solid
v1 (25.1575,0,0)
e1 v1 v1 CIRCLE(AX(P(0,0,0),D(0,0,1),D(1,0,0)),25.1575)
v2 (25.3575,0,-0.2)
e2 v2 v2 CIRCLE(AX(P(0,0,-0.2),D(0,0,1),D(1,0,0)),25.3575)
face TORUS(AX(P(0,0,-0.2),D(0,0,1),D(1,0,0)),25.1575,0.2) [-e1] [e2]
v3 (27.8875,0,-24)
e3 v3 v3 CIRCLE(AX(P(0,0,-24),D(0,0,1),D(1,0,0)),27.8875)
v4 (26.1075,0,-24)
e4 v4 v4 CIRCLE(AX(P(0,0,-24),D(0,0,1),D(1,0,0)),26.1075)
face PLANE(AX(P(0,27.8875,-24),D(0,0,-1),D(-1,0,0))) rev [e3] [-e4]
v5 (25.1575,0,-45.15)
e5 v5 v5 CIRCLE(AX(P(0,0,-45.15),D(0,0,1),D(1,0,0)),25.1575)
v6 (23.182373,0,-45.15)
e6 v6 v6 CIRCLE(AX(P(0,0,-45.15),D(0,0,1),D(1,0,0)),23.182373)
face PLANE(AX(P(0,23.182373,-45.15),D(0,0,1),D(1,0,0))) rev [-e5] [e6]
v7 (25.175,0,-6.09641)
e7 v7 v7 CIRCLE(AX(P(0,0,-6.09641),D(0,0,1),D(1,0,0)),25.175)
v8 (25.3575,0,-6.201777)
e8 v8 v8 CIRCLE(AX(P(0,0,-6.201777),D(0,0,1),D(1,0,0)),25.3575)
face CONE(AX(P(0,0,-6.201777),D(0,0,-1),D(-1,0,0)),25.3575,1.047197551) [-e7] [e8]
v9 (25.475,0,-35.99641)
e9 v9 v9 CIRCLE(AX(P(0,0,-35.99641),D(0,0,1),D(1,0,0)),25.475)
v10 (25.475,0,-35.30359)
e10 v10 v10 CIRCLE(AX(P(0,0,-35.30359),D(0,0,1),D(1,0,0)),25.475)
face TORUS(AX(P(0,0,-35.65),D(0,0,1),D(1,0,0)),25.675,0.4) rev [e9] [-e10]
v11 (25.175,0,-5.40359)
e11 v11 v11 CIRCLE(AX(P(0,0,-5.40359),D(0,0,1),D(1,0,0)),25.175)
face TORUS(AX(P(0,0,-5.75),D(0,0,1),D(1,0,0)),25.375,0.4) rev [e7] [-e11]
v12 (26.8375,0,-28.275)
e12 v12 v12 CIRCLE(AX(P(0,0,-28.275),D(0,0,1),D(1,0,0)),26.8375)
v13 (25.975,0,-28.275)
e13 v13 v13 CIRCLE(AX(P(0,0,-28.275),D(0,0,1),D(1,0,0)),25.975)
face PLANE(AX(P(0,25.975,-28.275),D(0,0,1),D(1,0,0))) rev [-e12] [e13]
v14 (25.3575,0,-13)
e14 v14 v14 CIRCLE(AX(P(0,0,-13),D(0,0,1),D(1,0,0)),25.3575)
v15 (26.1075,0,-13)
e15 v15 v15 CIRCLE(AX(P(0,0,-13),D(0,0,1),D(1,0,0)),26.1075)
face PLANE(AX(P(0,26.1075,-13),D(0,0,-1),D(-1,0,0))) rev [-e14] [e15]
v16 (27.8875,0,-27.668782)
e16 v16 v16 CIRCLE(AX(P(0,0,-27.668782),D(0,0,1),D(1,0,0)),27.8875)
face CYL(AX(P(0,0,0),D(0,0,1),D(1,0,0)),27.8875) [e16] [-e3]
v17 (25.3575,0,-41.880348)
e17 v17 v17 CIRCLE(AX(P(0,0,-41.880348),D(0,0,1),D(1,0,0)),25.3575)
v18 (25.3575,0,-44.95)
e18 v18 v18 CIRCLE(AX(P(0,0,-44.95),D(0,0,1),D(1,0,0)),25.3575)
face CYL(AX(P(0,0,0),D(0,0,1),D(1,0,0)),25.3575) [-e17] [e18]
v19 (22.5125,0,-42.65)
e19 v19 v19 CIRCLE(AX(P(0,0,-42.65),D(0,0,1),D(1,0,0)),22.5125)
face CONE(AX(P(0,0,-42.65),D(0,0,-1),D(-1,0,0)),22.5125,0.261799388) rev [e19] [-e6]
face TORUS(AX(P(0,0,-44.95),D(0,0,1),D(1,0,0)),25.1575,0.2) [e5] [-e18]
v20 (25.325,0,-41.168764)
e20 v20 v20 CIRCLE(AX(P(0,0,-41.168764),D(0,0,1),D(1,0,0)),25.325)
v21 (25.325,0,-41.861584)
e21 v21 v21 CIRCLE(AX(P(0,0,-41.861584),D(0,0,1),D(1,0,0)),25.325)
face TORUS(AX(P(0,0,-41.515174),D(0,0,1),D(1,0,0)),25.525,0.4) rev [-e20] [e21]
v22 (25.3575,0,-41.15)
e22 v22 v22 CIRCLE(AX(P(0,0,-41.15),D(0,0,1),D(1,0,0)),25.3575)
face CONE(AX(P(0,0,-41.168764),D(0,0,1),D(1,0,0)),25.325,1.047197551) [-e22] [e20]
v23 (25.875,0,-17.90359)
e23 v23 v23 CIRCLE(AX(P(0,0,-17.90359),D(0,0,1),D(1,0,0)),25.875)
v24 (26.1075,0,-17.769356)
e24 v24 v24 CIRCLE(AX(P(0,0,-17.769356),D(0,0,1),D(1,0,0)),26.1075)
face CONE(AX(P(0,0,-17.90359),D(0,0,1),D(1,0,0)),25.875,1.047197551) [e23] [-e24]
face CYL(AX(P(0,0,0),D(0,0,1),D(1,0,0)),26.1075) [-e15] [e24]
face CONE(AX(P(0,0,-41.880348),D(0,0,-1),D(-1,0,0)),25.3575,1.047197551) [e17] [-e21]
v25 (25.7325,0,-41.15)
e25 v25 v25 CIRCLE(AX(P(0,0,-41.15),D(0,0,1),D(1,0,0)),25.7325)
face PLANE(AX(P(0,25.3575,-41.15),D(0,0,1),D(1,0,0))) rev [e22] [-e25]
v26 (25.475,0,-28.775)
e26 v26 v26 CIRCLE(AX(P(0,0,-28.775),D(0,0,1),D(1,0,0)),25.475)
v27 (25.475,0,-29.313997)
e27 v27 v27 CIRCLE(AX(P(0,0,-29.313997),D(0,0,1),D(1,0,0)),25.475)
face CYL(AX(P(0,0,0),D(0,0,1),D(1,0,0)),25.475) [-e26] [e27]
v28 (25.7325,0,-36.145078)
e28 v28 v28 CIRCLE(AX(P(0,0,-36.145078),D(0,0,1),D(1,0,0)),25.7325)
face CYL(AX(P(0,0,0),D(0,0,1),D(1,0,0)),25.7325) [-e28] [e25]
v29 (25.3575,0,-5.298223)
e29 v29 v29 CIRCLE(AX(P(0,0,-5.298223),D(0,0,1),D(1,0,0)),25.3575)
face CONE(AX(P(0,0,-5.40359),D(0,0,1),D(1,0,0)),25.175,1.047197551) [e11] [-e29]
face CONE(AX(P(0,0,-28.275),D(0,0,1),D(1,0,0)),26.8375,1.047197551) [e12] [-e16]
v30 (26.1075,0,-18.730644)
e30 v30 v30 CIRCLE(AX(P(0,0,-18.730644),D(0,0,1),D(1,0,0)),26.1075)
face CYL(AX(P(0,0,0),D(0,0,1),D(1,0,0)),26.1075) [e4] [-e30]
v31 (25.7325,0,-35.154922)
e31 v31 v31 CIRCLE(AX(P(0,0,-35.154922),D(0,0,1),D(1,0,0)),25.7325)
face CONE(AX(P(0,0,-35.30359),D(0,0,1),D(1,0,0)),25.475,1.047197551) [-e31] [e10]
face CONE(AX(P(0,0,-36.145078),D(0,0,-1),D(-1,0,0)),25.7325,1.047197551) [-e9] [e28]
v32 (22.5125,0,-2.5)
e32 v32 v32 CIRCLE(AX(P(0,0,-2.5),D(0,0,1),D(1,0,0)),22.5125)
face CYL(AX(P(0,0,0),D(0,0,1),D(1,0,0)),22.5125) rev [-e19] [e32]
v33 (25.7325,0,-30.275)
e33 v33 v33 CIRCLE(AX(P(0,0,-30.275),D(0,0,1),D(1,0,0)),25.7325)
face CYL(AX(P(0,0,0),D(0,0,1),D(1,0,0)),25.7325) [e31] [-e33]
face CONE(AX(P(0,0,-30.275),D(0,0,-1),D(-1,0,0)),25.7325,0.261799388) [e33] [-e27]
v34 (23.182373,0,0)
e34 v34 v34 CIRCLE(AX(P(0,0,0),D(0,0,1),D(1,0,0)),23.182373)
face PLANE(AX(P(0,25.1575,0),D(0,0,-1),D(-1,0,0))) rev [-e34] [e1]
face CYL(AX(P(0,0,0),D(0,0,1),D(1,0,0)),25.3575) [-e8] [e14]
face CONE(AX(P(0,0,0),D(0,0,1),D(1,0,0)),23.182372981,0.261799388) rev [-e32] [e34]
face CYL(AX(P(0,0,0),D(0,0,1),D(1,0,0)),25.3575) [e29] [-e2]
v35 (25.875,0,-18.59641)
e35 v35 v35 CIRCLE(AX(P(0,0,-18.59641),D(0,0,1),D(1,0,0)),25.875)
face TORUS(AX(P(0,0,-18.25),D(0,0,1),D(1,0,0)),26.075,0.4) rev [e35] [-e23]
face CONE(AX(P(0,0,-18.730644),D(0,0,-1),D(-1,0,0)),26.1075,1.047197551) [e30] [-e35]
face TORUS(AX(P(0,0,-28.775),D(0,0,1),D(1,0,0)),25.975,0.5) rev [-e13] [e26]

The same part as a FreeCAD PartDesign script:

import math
import FreeCAD as App
import Part
import Sketcher

V = App.Vector
Q = App.Units.Quantity

doc = App.newDocument("Part")
params = doc.addObject("Spreadsheet::Sheet", "Params")
for row, (alias, value) in enumerate([
    ("sketch1_radius", "0.2 mm"),
    ("sketch1_radius2", "0.4 mm"),
    ("sketch1_radius3", "0.5 mm"),
    ("sketch1_width", "1.78 mm"),
    ("sketch1_width2", "0.75 mm"),
    ("revolution_angle", "360 deg"),
], start=1):
    params.set(f"A{row}", alias)
    params.set(f"B{row}", "=" + value)
    params.setAlias(f"B{row}", alias)

body = doc.addObject("PartDesign::Body", "Body")

# Sketch on YZ plane
sketch1 = body.newObject("Sketcher::SketchObject", "Sketch")
sketch1.AttachmentSupport = (doc.getObject("YZ_Plane"), [""])
sketch1.MapMode = "FlatFace"
sketch1.addGeometry(Part.LineSegment(V(23.182, 0, 0), V(22.512, -2.5, 0)), False)
sketch1.addGeometry(Part.LineSegment(V(22.512, -2.5, 0), V(22.512, -42.65, 0)), False)
sketch1.addGeometry(Part.LineSegment(V(22.512, -42.65, 0), V(23.182, -45.15, 0)), False)
sketch1.addGeometry(Part.LineSegment(V(23.182, -45.15, 0), V(25.157, -45.15, 0)), False)
sketch1.addGeometry(Part.ArcOfCircle(Part.Circle(V(25.157, -44.95, 0), V(0, 0, 1), 0.2), math.radians(-90), math.radians(0)), False)
sketch1.addGeometry(Part.LineSegment(V(25.358, -44.95, 0), V(25.358, -41.88, 0)), False)
sketch1.addGeometry(Part.LineSegment(V(25.358, -41.88, 0), V(25.325, -41.862, 0)), False)
sketch1.addGeometry(Part.ArcOfCircle(Part.Circle(V(25.525, -41.515, 0), V(0, 0, 1), 0.4), math.radians(120), math.radians(240)), False)
sketch1.addGeometry(Part.LineSegment(V(25.325, -41.169, 0), V(25.358, -41.15, 0)), False)
sketch1.addGeometry(Part.LineSegment(V(25.358, -41.15, 0), V(25.733, -41.15, 0)), False)
sketch1.addGeometry(Part.LineSegment(V(25.733, -41.15, 0), V(25.733, -36.145, 0)), False)
sketch1.addGeometry(Part.LineSegment(V(25.733, -36.145, 0), V(25.475, -35.996, 0)), False)
sketch1.addGeometry(Part.ArcOfCircle(Part.Circle(V(25.675, -35.65, 0), V(0, 0, 1), 0.4), math.radians(120), math.radians(240)), False)
sketch1.addGeometry(Part.LineSegment(V(25.475, -35.304, 0), V(25.733, -35.155, 0)), False)
sketch1.addGeometry(Part.LineSegment(V(25.733, -35.155, 0), V(25.733, -30.275, 0)), False)
sketch1.addGeometry(Part.LineSegment(V(25.733, -30.275, 0), V(25.475, -29.314, 0)), False)
sketch1.addGeometry(Part.LineSegment(V(25.475, -29.314, 0), V(25.475, -28.775, 0)), False)
sketch1.addGeometry(Part.ArcOfCircle(Part.Circle(V(25.975, -28.775, 0), V(0, 0, 1), 0.5), math.radians(90), math.radians(180)), False)
sketch1.addGeometry(Part.LineSegment(V(25.975, -28.275, 0), V(26.837, -28.275, 0)), False)
sketch1.addGeometry(Part.LineSegment(V(26.837, -28.275, 0), V(27.887, -27.669, 0)), False)
sketch1.addGeometry(Part.LineSegment(V(27.887, -27.669, 0), V(27.887, -24, 0)), False)
sketch1.addGeometry(Part.LineSegment(V(27.887, -24, 0), V(26.108, -24, 0)), False)
sketch1.addGeometry(Part.LineSegment(V(26.108, -24, 0), V(26.108, -18.731, 0)), False)
sketch1.addGeometry(Part.LineSegment(V(26.108, -18.731, 0), V(25.875, -18.596, 0)), False)
sketch1.addGeometry(Part.ArcOfCircle(Part.Circle(V(26.075, -18.25, 0), V(0, 0, 1), 0.4), math.radians(120), math.radians(240)), False)
sketch1.addGeometry(Part.LineSegment(V(25.875, -17.904, 0), V(26.108, -17.769, 0)), False)
sketch1.addGeometry(Part.LineSegment(V(26.108, -17.769, 0), V(26.108, -13, 0)), False)
sketch1.addGeometry(Part.LineSegment(V(26.108, -13, 0), V(25.358, -13, 0)), False)
sketch1.addGeometry(Part.LineSegment(V(25.358, -13, 0), V(25.358, -6.202, 0)), False)
sketch1.addGeometry(Part.LineSegment(V(25.358, -6.202, 0), V(25.175, -6.096, 0)), False)
sketch1.addGeometry(Part.ArcOfCircle(Part.Circle(V(25.375, -5.75, 0), V(0, 0, 1), 0.4), math.radians(120), math.radians(240)), False)
sketch1.addGeometry(Part.LineSegment(V(25.175, -5.404, 0), V(25.358, -5.298, 0)), False)
sketch1.addGeometry(Part.LineSegment(V(25.358, -5.298, 0), V(25.358, -0.2, 0)), False)
sketch1.addGeometry(Part.ArcOfCircle(Part.Circle(V(25.157, -0.2, 0), V(0, 0, 1), 0.2), math.radians(0), math.radians(90)), False)
sketch1.addGeometry(Part.LineSegment(V(25.157, 0, 0), V(23.182, 0, 0)), False)
sketch1.addConstraint(Sketcher.Constraint("Coincident", 0, 2, 1, 1))
sketch1.addConstraint(Sketcher.Constraint("Coincident", 1, 2, 2, 1))
sketch1.addConstraint(Sketcher.Constraint("Coincident", 2, 2, 3, 1))
sketch1.addConstraint(Sketcher.Constraint("Tangent", 3, 2, 4, 1))
sketch1.addConstraint(Sketcher.Constraint("Tangent", 4, 2, 5, 1))
sketch1.addConstraint(Sketcher.Constraint("Coincident", 5, 2, 6, 1))
sketch1.addConstraint(Sketcher.Constraint("Tangent", 6, 2, 7, 2))
sketch1.addConstraint(Sketcher.Constraint("Tangent", 7, 1, 8, 1))
sketch1.addConstraint(Sketcher.Constraint("Coincident", 8, 2, 9, 1))
sketch1.addConstraint(Sketcher.Constraint("Coincident", 9, 2, 10, 1))
sketch1.addConstraint(Sketcher.Constraint("Coincident", 10, 2, 11, 1))
sketch1.addConstraint(Sketcher.Constraint("Tangent", 11, 2, 12, 2))
sketch1.addConstraint(Sketcher.Constraint("Tangent", 12, 1, 13, 1))
sketch1.addConstraint(Sketcher.Constraint("Coincident", 13, 2, 14, 1))
sketch1.addConstraint(Sketcher.Constraint("Coincident", 14, 2, 15, 1))
sketch1.addConstraint(Sketcher.Constraint("Coincident", 15, 2, 16, 1))
sketch1.addConstraint(Sketcher.Constraint("Tangent", 16, 2, 17, 2))
sketch1.addConstraint(Sketcher.Constraint("Tangent", 17, 1, 18, 1))
sketch1.addConstraint(Sketcher.Constraint("Coincident", 18, 2, 19, 1))
sketch1.addConstraint(Sketcher.Constraint("Coincident", 19, 2, 20, 1))
sketch1.addConstraint(Sketcher.Constraint("Coincident", 20, 2, 21, 1))
sketch1.addConstraint(Sketcher.Constraint("Coincident", 21, 2, 22, 1))
sketch1.addConstraint(Sketcher.Constraint("Coincident", 22, 2, 23, 1))
sketch1.addConstraint(Sketcher.Constraint("Tangent", 23, 2, 24, 2))
sketch1.addConstraint(Sketcher.Constraint("Tangent", 24, 1, 25, 1))
sketch1.addConstraint(Sketcher.Constraint("Coincident", 25, 2, 26, 1))
sketch1.addConstraint(Sketcher.Constraint("Coincident", 26, 2, 27, 1))
sketch1.addConstraint(Sketcher.Constraint("Coincident", 27, 2, 28, 1))
sketch1.addConstraint(Sketcher.Constraint("Coincident", 28, 2, 29, 1))
sketch1.addConstraint(Sketcher.Constraint("Tangent", 29, 2, 30, 2))
sketch1.addConstraint(Sketcher.Constraint("Tangent", 30, 1, 31, 1))
sketch1.addConstraint(Sketcher.Constraint("Coincident", 31, 2, 32, 1))
sketch1.addConstraint(Sketcher.Constraint("Tangent", 32, 2, 33, 1))
sketch1.addConstraint(Sketcher.Constraint("Tangent", 33, 2, 34, 1))
sketch1.addConstraint(Sketcher.Constraint("Coincident", 34, 2, 0, 1))
sketch1.addConstraint(Sketcher.Constraint("Vertical", 1))
sketch1.addConstraint(Sketcher.Constraint("Horizontal", 3))
sketch1.addConstraint(Sketcher.Constraint("Vertical", 5))
sketch1.addConstraint(Sketcher.Constraint("Horizontal", 9))
sketch1.addConstraint(Sketcher.Constraint("Vertical", 10))
sketch1.addConstraint(Sketcher.Constraint("Vertical", 14))
sketch1.addConstraint(Sketcher.Constraint("Vertical", 16))
sketch1.addConstraint(Sketcher.Constraint("Horizontal", 18))
sketch1.addConstraint(Sketcher.Constraint("Vertical", 20))
sketch1.addConstraint(Sketcher.Constraint("Horizontal", 21))
sketch1.addConstraint(Sketcher.Constraint("Vertical", 22))
sketch1.addConstraint(Sketcher.Constraint("Vertical", 26))
sketch1.addConstraint(Sketcher.Constraint("Horizontal", 27))
sketch1.addConstraint(Sketcher.Constraint("Vertical", 28))
sketch1.addConstraint(Sketcher.Constraint("Vertical", 32))
sketch1.addConstraint(Sketcher.Constraint("Horizontal", 34))
sketch1.addConstraint(Sketcher.Constraint("Equal", 7, 12))
sketch1.addConstraint(Sketcher.Constraint("Equal", 12, 24))
sketch1.addConstraint(Sketcher.Constraint("Equal", 24, 30))
sketch1.addConstraint(Sketcher.Constraint("Equal", 4, 33))
sketch1.addConstraint(Sketcher.Constraint("PointOnObject", 33, 2, -1))
sketch1.addConstraint(Sketcher.Constraint("Parallel", 6, 11))
sketch1.addConstraint(Sketcher.Constraint("Parallel", 8, 13))
sketch1.addConstraint(Sketcher.Constraint("Parallel", 2, 15))
sketch1.addConstraint(Sketcher.Constraint("Parallel", 13, 19))
sketch1.addConstraint(Sketcher.Constraint("Parallel", 11, 23))
sketch1.addConstraint(Sketcher.Constraint("Parallel", 19, 25))
sketch1.addConstraint(Sketcher.Constraint("Parallel", 23, 29))
sketch1.addConstraint(Sketcher.Constraint("Parallel", 25, 31))
sketch1.addConstraint(Sketcher.Constraint("Vertical", 4, 3, 33, 3))
sketch1.addConstraint(Sketcher.Constraint("Vertical", 6, 2, 7, 1))
sketch1.addConstraint(Sketcher.Constraint("Vertical", 5, 2, 8, 2))
sketch1.addConstraint(Sketcher.Constraint("Vertical", 10, 2, 13, 2))
sketch1.addConstraint(Sketcher.Constraint("Vertical", 12, 1, 15, 2))
sketch1.addConstraint(Sketcher.Constraint("Vertical", 22, 2, 25, 2))
sketch1.addConstraint(Sketcher.Constraint("Vertical", 8, 2, 27, 2))
sketch1.addConstraint(Sketcher.Constraint("Vertical", 2, 2, 34, 2))
sketch1.addConstraint(Sketcher.Constraint("Equal", 0, 2))
sketch1.addConstraint(Sketcher.Constraint("Radius", 4, Q("0.2 mm")))
sketch1.addConstraint(Sketcher.Constraint("Radius", 7, Q("0.4 mm")))
sketch1.addConstraint(Sketcher.Constraint("Radius", 17, Q("0.5 mm")))
sketch1.addConstraint(Sketcher.Constraint("Angle", 0, Q("-105 deg")))
sketch1.addConstraint(Sketcher.Constraint("Angle", 6, Q("150 deg")))
sketch1.addConstraint(Sketcher.Constraint("DistanceY", 20, 2, -1, 1, Q("24 mm")))
sketch1.addConstraint(Sketcher.Constraint("DistanceY", 26, 2, -1, 1, Q("13 mm")))
sketch1.addConstraint(Sketcher.Constraint("DistanceY", 1, 2, 12, 3, Q("7 mm")))
sketch1.addConstraint(Sketcher.Constraint("DistanceY", 14, 2, 17, 1, Q("2 mm")))
sketch1.addConstraint(Sketcher.Constraint("DistanceX", 21, 2, 21, 1, Q("1.78 mm")))
sketch1.addConstraint(Sketcher.Constraint("DistanceX", 27, 2, 27, 1, Q("0.75 mm")))
sketch1.addConstraint(Sketcher.Constraint("DistanceY", 1, 2, 1, 1, Q("40.15 mm")))
sketch1.addConstraint(Sketcher.Constraint("DistanceY", 0, 2, -1, 1, Q("2.5 mm")))
sketch1.addConstraint(Sketcher.Constraint("DistanceX", 17, 3, 24, 3, Q("0.1 mm")))
sketch1.addConstraint(Sketcher.Constraint("DistanceY", 12, 3, 24, 3, Q("17.4 mm")))
sketch1.addConstraint(Sketcher.Constraint("DistanceX", 30, 3, 24, 3, Q("0.7 mm")))
sketch1.addConstraint(Sketcher.Constraint("DistanceY", 24, 3, 30, 3, Q("12.5 mm")))
sketch1.addConstraint(Sketcher.Constraint("DistanceY", 1, 2, 8, 2, Q("1.5 mm")))
sketch1.addConstraint(Sketcher.Constraint("DistanceX", 9, 1, 9, 2, Q("0.375 mm")))
sketch1.addConstraint(Sketcher.Constraint("DistanceX", 7, 3, 12, 3, Q("0.15 mm")))
sketch1.addConstraint(Sketcher.Constraint("DistanceX", 18, 2, 19, 2, Q("1.05 mm")))
sketch1.addConstraint(Sketcher.Constraint("DistanceX", 18, 1, 18, 2, Q("0.8625 mm")))
sketch1.addConstraint(Sketcher.Constraint("DistanceX", -1, 1, 7, 3, Q("25.525 mm")))
sketch1.addConstraint(Sketcher.Constraint("DistanceY", 17, 3, -1, 1, Q("28.775 mm")))
sketch1.addConstraint(Sketcher.Constraint("DistanceX", 0, 2, 33, 3, Q("2.645 mm")))
sketch1.setExpression("Constraints[73]", "Params.sketch1_radius")
sketch1.setExpression("Constraints[74]", "Params.sketch1_radius2")
sketch1.setExpression("Constraints[75]", "Params.sketch1_radius3")
sketch1.setExpression("Constraints[82]", "Params.sketch1_width")
sketch1.setExpression("Constraints[83]", "Params.sketch1_width2")
revolution = body.newObject("PartDesign::Revolution", "Revolution")
revolution.Profile = sketch1
revolution.ReferenceAxis = (sketch1, ["V_Axis"])
revolution.setExpression("Angle", "Params.revolution_angle")

doc.recompute()
